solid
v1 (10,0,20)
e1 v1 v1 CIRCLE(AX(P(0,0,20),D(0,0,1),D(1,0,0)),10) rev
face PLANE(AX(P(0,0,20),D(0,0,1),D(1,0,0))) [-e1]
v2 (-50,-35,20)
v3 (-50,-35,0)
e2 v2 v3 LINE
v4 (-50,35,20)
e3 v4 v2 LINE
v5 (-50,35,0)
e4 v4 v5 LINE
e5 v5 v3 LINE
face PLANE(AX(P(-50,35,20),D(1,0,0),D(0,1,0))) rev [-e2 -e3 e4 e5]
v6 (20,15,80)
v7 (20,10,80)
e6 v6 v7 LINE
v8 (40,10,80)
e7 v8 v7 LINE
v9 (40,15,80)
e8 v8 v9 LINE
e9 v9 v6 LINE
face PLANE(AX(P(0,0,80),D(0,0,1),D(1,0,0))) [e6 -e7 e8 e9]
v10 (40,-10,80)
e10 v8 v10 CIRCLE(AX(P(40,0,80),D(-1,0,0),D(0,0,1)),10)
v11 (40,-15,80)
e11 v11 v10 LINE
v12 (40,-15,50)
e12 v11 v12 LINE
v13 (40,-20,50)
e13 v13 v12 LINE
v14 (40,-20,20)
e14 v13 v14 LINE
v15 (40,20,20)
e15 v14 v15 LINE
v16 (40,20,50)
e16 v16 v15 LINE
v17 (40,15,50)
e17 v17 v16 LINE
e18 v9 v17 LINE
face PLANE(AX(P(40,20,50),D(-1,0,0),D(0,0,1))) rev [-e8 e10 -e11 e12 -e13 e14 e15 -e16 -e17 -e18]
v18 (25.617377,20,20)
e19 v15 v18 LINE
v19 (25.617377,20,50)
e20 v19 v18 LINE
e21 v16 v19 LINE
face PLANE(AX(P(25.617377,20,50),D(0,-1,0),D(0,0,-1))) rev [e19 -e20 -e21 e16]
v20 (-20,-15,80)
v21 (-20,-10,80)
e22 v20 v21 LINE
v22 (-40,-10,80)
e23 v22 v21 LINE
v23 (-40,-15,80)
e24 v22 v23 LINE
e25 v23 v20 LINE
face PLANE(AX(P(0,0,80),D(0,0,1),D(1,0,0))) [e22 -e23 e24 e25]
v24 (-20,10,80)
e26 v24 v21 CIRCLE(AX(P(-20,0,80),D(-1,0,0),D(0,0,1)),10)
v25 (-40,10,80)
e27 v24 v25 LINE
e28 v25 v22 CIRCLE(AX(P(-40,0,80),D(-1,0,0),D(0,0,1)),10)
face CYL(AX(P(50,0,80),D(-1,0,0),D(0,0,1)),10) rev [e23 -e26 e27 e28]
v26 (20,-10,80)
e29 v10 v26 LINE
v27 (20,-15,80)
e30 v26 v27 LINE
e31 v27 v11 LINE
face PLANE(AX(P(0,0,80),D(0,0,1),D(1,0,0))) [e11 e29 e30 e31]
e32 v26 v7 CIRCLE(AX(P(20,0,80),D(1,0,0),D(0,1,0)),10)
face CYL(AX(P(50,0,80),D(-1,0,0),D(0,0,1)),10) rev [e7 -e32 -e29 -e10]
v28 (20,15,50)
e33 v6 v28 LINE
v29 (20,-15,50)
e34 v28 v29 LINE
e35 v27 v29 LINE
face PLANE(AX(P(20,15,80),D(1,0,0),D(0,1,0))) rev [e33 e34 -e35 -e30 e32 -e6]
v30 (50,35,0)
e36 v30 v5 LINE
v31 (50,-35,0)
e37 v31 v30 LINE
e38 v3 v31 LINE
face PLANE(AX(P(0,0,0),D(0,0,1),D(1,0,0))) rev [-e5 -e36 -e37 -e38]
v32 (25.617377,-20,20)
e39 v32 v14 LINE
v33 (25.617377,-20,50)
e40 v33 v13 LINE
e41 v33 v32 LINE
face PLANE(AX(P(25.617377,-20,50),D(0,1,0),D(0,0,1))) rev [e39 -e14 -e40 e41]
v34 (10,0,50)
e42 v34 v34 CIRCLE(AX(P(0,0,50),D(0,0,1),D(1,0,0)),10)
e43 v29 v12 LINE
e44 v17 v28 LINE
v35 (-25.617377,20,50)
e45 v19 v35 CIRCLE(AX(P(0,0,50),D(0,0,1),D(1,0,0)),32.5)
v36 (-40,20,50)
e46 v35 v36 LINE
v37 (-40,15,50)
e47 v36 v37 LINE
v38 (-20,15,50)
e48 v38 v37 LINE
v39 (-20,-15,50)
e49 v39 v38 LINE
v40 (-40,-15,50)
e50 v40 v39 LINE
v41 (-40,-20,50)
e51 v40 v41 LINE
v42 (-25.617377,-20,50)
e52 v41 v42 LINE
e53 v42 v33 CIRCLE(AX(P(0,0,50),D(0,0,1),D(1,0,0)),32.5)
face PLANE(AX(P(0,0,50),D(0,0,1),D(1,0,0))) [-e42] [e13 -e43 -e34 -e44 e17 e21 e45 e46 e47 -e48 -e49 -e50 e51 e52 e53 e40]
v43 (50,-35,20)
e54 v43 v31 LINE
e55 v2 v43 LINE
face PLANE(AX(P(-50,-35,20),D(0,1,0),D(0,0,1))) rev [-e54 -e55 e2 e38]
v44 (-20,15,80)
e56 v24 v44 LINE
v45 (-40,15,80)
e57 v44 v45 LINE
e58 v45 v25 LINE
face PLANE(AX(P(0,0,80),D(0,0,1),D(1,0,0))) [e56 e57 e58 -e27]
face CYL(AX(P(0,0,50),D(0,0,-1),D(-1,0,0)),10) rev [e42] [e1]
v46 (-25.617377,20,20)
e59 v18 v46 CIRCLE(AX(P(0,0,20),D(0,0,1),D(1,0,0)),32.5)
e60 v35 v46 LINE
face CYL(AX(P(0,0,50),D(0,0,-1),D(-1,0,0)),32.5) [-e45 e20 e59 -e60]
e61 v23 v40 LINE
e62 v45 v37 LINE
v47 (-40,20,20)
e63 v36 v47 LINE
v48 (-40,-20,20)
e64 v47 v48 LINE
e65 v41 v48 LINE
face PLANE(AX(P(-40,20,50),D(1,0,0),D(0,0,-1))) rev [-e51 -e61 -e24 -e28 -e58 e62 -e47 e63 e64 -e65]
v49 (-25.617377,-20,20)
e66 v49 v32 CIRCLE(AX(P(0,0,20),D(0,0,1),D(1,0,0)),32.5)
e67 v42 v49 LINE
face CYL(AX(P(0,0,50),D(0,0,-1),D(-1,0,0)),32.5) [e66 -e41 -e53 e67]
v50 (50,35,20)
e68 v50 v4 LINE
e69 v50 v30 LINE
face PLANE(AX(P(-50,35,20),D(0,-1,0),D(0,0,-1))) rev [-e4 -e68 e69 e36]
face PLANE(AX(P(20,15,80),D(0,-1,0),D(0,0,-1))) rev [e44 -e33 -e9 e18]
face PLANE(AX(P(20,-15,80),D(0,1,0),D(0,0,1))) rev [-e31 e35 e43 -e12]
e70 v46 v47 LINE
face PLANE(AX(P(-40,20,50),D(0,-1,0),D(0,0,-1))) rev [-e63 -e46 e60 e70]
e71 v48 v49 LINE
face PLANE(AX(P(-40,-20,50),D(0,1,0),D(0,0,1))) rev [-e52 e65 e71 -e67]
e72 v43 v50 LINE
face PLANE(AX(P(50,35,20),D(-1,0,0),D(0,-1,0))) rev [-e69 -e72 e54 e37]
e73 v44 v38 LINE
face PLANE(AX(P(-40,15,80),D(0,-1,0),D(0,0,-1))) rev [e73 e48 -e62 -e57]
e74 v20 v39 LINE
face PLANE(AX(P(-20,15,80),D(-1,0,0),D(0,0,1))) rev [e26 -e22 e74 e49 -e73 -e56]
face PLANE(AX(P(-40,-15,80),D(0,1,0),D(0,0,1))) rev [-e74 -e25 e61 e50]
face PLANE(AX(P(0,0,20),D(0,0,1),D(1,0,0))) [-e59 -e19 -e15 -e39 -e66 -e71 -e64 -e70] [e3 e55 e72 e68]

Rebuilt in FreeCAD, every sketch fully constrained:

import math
import FreeCAD as App
import Part
import Sketcher
from FreeCAD import Vector

doc = App.newDocument("Part")
body = doc.addObject("PartDesign::Body", "Body")

sketch1 = body.newObject("Sketcher::SketchObject", "Sketch")
sketch1.AttachmentSupport = (doc.getObject("XY_Plane"), [""])
sketch1.MapMode = "FlatFace"
sketch1.addGeometry([
    Part.LineSegment(Vector(-50, 35, 0), Vector(-50, -35, 0)),
    Part.LineSegment(Vector(-50, -35, 0), Vector(50, -35, 0)),
    Part.LineSegment(Vector(50, -35, 0), Vector(50, 35, 0)),
    Part.LineSegment(Vector(50, 35, 0), Vector(-50, 35, 0)),
], False)
sketch1.addConstraint([
    Sketcher.Constraint("Coincident", 0, 2, 1, 1),
    Sketcher.Constraint("Coincident", 1, 2, 2, 1),
    Sketcher.Constraint("Coincident", 2, 2, 3, 1),
    Sketcher.Constraint("Coincident", 3, 2, 0, 1),
    Sketcher.Constraint("Vertical", 0),
    Sketcher.Constraint("Horizontal", 1),
    Sketcher.Constraint("Vertical", 2),
    Sketcher.Constraint("Horizontal", 3),
    Sketcher.Constraint("Symmetric", 0, 2, 2, 2, -1, 1),
    Sketcher.Constraint("DistanceX", 1, 1, 1, 2, 100.0),
    Sketcher.Constraint("DistanceY", 0, 2, 0, 1, 70.0),
])
pad1 = body.newObject("PartDesign::Pad", "Pad")
pad1.Profile = sketch1
pad1.Length = 20

sketch2 = body.newObject("Sketcher::SketchObject", "Sketch001")
sketch2.AttachmentSupport = (doc.getObject("XY_Plane"), [""])
sketch2.MapMode = "FlatFace"
sketch2.AttachmentOffset = App.Placement(Vector(0, 0, 20), App.Rotation())
sketch2.addGeometry([
    Part.LineSegment(Vector(40, 20, 0), Vector(26, 20, 0)),
    Part.ArcOfCircle(Part.Circle(Vector(0, 0, 0), Vector(0, 0, 1), 32), math.radians(38), math.radians(142)),
    Part.LineSegment(Vector(-26, 20, 0), Vector(-40, 20, 0)),
    Part.LineSegment(Vector(-40, 20, 0), Vector(-40, -20, 0)),
    Part.LineSegment(Vector(-40, -20, 0), Vector(-26, -20, 0)),
    Part.ArcOfCircle(Part.Circle(Vector(0, 0, 0), Vector(0, 0, 1), 32), math.radians(-142), math.radians(-38)),
    Part.LineSegment(Vector(26, -20, 0), Vector(40, -20, 0)),
    Part.LineSegment(Vector(40, -20, 0), Vector(40, 20, 0)),
    Part.Circle(Vector(0, 0, 0), Vector(0, 0, 1), 10),
], False)
sketch2.addConstraint([
    Sketcher.Constraint("Coincident", 0, 2, 1, 1),
    Sketcher.Constraint("Coincident", 1, 2, 2, 1),
    Sketcher.Constraint("Coincident", 2, 2, 3, 1),
    Sketcher.Constraint("Coincident", 3, 2, 4, 1),
    Sketcher.Constraint("Coincident", 4, 2, 5, 1),
    Sketcher.Constraint("Coincident", 5, 2, 6, 1),
    Sketcher.Constraint("Coincident", 6, 2, 7, 1),
    Sketcher.Constraint("Coincident", 7, 2, 0, 1),
    Sketcher.Constraint("Horizontal", 0),
    Sketcher.Constraint("Horizontal", 2),
    Sketcher.Constraint("Vertical", 3),
    Sketcher.Constraint("Horizontal", 4),
    Sketcher.Constraint("Horizontal", 6),
    Sketcher.Constraint("Vertical", 7),
    Sketcher.Constraint("Coincident", 1, 3, -1, 1),
    Sketcher.Constraint("Coincident", 5, 3, -1, 1),
    Sketcher.Constraint("Coincident", 8, 3, -1, 1),
    Sketcher.Constraint("Equal", 1, 5),
    Sketcher.Constraint("Symmetric", 2, 2, 6, 2, -1, 1),
    Sketcher.Constraint("Horizontal", 0, 2, 1, 2),
    Sketcher.Constraint("Horizontal", 4, 2, 5, 2),
    Sketcher.Constraint("Diameter", 8, 20.0),
    Sketcher.Constraint("Radius", 1, 32.5),
    Sketcher.Constraint("DistanceY", 3, 2, 3, 1, 40.0),
    Sketcher.Constraint("DistanceX", 2, 2, -1, 1, 40.0),
])
pad2 = body.newObject("PartDesign::Pad", "Pad001")
pad2.Profile = sketch2
pad2.Length = 30

sketch3 = body.newObject("Sketcher::SketchObject", "Sketch002")
sketch3.AttachmentSupport = (doc.getObject("XY_Plane"), [""])
sketch3.MapMode = "FlatFace"
sketch3.AttachmentOffset = App.Placement(Vector(0, 0, 50), App.Rotation())
sketch3.addGeometry([
    Part.LineSegment(Vector(20, 15, 0), Vector(20, -15, 0)),
    Part.LineSegment(Vector(20, -15, 0), Vector(40, -15, 0)),
    Part.LineSegment(Vector(40, -15, 0), Vector(40, 15, 0)),
    Part.LineSegment(Vector(40, 15, 0), Vector(20, 15, 0)),
    Part.LineSegment(Vector(-40, 15, 0), Vector(-40, -15, 0)),
    Part.LineSegment(Vector(-40, -15, 0), Vector(-20, -15, 0)),
    Part.LineSegment(Vector(-20, -15, 0), Vector(-20, 15, 0)),
    Part.LineSegment(Vector(-20, 15, 0), Vector(-40, 15, 0)),
], False)
sketch3.addConstraint([
    Sketcher.Constraint("Coincident", 0, 2, 1, 1),
    Sketcher.Constraint("Coincident", 1, 2, 2, 1),
    Sketcher.Constraint("Coincident", 2, 2, 3, 1),
    Sketcher.Constraint("Coincident", 3, 2, 0, 1),
    Sketcher.Constraint("Coincident", 4, 2, 5, 1),
    Sketcher.Constraint("Coincident", 5, 2, 6, 1),
    Sketcher.Constraint("Coincident", 6, 2, 7, 1),
    Sketcher.Constraint("Coincident", 7, 2, 4, 1),
    Sketcher.Constraint("Vertical", 0),
    Sketcher.Constraint("Horizontal", 1),
    Sketcher.Constraint("Vertical", 2),
    Sketcher.Constraint("Horizontal", 3),
    Sketcher.Constraint("Vertical", 4),
    Sketcher.Constraint("Horizontal", 5),
    Sketcher.Constraint("Vertical", 6),
    Sketcher.Constraint("Horizontal", 7),
    Sketcher.Constraint("Symmetric", 2, 2, 4, 2, -1, 1),
    Sketcher.Constraint("Symmetric", 0, 2, 6, 2, -1, 1),
    Sketcher.Constraint("Horizontal", 1, 2, 4, 2),
    Sketcher.Constraint("DistanceX", 1, 1, 1, 2, 20.0),
    Sketcher.Constraint("DistanceY", 0, 2, 0, 1, 30.0),
    Sketcher.Constraint("DistanceX", -1, 1, 0, 2, 20.0),
])
pad3 = body.newObject("PartDesign::Pad", "Pad002")
pad3.Profile = sketch3
pad3.Length = 30

sketch4 = body.newObject("Sketcher::SketchObject", "Sketch003")
sketch4.AttachmentSupport = (doc.getObject("YZ_Plane"), [""])
sketch4.MapMode = "FlatFace"
sketch4.AttachmentOffset = App.Placement(Vector(0, 0, -40), App.Rotation())
sketch4.addGeometry([
    Part.ArcOfCircle(Part.Circle(Vector(0, 80, 0), Vector(0, 0, 1), 10), math.radians(0), math.radians(90)),
    Part.ArcOfCircle(Part.Circle(Vector(0, 80, 0), Vector(0, 0, 1), 10), math.radians(180), math.radians(360)),
    Part.ArcOfCircle(Part.Circle(Vector(0, 80, 0), Vector(0, 0, 1), 10), math.radians(90), math.radians(180)),
], False)
sketch4.addConstraint([
    Sketcher.Constraint("Tangent", 0, 1, 1, 2),
    Sketcher.Constraint("Tangent", 1, 1, 2, 2),
    Sketcher.Constraint("Tangent", 2, 1, 0, 2),
    Sketcher.Constraint("Symmetric", 0, 1, 1, 1, -2),
    Sketcher.Constraint("PointOnObject", 2, 1, -2),
    Sketcher.Constraint("Horizontal", 2, 3, 0, 1),
    Sketcher.Constraint("Radius", 0, 10.0),
    Sketcher.Constraint("DistanceY", -1, 1, 0, 3, 80.0),
])
pocket1 = body.newObject("PartDesign::Pocket", "Pocket")
pocket1.Profile = sketch4
pocket1.Type = "ThroughAll"
pocket1.Reversed = True

doc.recompute()
